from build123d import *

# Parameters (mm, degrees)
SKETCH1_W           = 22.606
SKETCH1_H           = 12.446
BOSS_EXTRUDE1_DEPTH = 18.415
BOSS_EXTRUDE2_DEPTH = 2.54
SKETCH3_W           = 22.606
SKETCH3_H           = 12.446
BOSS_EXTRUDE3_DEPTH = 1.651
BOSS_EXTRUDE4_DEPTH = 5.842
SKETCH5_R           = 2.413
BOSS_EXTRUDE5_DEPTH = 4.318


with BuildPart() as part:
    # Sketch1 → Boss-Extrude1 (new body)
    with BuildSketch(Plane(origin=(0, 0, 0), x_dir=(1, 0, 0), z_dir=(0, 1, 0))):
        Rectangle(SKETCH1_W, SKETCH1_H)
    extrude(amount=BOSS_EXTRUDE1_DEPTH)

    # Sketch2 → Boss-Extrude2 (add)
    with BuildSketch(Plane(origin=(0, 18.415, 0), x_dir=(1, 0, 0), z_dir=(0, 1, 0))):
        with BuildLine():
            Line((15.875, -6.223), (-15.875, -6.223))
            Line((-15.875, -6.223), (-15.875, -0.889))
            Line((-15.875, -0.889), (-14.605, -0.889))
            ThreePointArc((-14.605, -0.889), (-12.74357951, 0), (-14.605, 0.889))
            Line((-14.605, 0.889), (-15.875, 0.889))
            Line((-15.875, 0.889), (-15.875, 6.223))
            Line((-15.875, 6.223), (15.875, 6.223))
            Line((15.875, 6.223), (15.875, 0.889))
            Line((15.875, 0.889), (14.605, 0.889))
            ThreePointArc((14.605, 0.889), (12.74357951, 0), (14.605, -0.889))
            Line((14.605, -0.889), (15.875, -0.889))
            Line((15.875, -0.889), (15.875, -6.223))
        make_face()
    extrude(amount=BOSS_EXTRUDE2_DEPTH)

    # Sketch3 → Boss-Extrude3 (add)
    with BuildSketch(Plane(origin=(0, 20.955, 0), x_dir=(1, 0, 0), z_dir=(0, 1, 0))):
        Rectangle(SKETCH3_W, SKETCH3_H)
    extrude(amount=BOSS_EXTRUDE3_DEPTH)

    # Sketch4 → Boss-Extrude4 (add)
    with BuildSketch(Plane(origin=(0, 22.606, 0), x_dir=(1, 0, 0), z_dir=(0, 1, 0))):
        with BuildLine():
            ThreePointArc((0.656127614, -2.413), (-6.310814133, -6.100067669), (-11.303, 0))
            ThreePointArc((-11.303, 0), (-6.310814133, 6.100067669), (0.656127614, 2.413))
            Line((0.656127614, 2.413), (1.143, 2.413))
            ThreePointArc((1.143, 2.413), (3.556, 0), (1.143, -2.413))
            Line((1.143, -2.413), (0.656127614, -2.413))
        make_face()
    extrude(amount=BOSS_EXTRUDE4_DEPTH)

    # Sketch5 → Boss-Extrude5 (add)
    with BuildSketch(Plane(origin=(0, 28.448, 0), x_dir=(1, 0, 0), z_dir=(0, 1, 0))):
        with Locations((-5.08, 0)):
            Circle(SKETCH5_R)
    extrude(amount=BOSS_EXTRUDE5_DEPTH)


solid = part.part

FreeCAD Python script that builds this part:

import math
import FreeCAD as App
import Part
import Sketcher
from FreeCAD import Vector
Q = App.Units.Quantity


def add_polygon(sketch, points):
    """Adds a closed chain of lines whose ends are joined by coincident constraints."""
    first, n = sketch.GeometryCount, len(points)
    for a, b in zip(points, points[1:] + points[:1]):
        sketch.addGeometry(Part.LineSegment(App.Vector(*a, 0), App.Vector(*b, 0)), False)
    for i in range(n):
        sketch.addConstraint(Sketcher.Constraint("Coincident", first + i, 2, first + (i + 1) % n, 1))

doc = App.newDocument("Part")
body = doc.addObject("PartDesign::Body", "Body")

sketch1 = doc.addObject("Sketcher::SketchObject", "Sketch")
body.addObject(sketch1)
sketch1.AttachmentSupport = (doc.XZ_Plane, [""])
sketch1.MapMode = "FlatFace"
add_polygon(sketch1, [(-11, -6), (-11, 6), (11, 6), (11, -6)])
sketch1.addConstraint([
    Sketcher.Constraint("Vertical", 0),
    Sketcher.Constraint("Horizontal", 1),
    Sketcher.Constraint("Vertical", 2),
    Sketcher.Constraint("Horizontal", 3),
    Sketcher.Constraint("Symmetric", 0, 2, 2, 2, -1, 1),
    Sketcher.Constraint("DistanceX", 1, 1, 1, 2, Q("0.89 in")),
    Sketcher.Constraint("DistanceY", 0, 1, 0, 2, Q("0.49 in")),
])
pad1 = doc.addObject("PartDesign::Pad", "Pad")
body.addObject(pad1)
pad1.Profile = sketch1
pad1.Length = Q("0.725 in")
pad1.Reversed = True

sketch2 = doc.addObject("Sketcher::SketchObject", "Sketch001")
body.addObject(sketch2)
sketch2.AttachmentSupport = (doc.XZ_Plane, [""])
sketch2.MapMode = "FlatFace"
sketch2.AttachmentOffset = App.Placement(Vector(0, 0, -0.725 * 25.4), App.Rotation())
sketch2.addGeometry([
    Part.LineSegment(Vector(-15.9, 6.2, 0), Vector(15.9, 6.2, 0)),
    Part.LineSegment(Vector(15.9, 6.2, 0), Vector(15.9, 0.9, 0)),
    Part.LineSegment(Vector(15.9, 0.9, 0), Vector(14.6, 0.9, 0)),
    Part.ArcOfCircle(Part.Circle(Vector(13.9, 0, 0), Vector(0, 0, 1), 1.1), math.radians(51), math.radians(309)),
    Part.LineSegment(Vector(14.6, -0.9, 0), Vector(15.9, -0.9, 0)),
    Part.LineSegment(Vector(15.9, -0.9, 0), Vector(15.9, -6.2, 0)),
    Part.LineSegment(Vector(15.9, -6.2, 0), Vector(-15.9, -6.2, 0)),
    Part.LineSegment(Vector(-15.9, -6.2, 0), Vector(-15.9, -0.9, 0)),
    Part.LineSegment(Vector(-15.9, -0.9, 0), Vector(-14.6, -0.9, 0)),
    Part.ArcOfCircle(Part.Circle(Vector(-13.9, 0, 0), Vector(0, 0, 1), 1.1), math.radians(-129), math.radians(129)),
    Part.LineSegment(Vector(-14.6, 0.9, 0), Vector(-15.9, 0.9, 0)),
    Part.LineSegment(Vector(-15.9, 0.9, 0), Vector(-15.9, 6.2, 0)),
], False)
sketch2.addConstraint([
    Sketcher.Constraint("Coincident", 0, 2, 1, 1),
    Sketcher.Constraint("Coincident", 1, 2, 2, 1),
    Sketcher.Constraint("Coincident", 2, 2, 3, 1),
    Sketcher.Constraint("Coincident", 3, 2, 4, 1),
    Sketcher.Constraint("Coincident", 4, 2, 5, 1),
    Sketcher.Constraint("Coincident", 5, 2, 6, 1),
    Sketcher.Constraint("Coincident", 6, 2, 7, 1),
    Sketcher.Constraint("Coincident", 7, 2, 8, 1),
    Sketcher.Constraint("Coincident", 8, 2, 9, 1),
    Sketcher.Constraint("Coincident", 9, 2, 10, 1),
    Sketcher.Constraint("Coincident", 10, 2, 11, 1),
    Sketcher.Constraint("Coincident", 11, 2, 0, 1),
    Sketcher.Constraint("Horizontal", 0),
    Sketcher.Constraint("Vertical", 1),
    Sketcher.Constraint("Horizontal", 2),
    Sketcher.Constraint("Horizontal", 4),
    Sketcher.Constraint("Vertical", 5),
    Sketcher.Constraint("Horizontal", 6),
    Sketcher.Constraint("Vertical", 7),
    Sketcher.Constraint("Horizontal", 8),
    Sketcher.Constraint("Horizontal", 10),
    Sketcher.Constraint("Vertical", 11),
    Sketcher.Constraint("Equal", 3, 9),
    Sketcher.Constraint("Symmetric", 3, 3, 9, 3, -1, 1),
    Sketcher.Constraint("Symmetric", 0, 2, 6, 2, -1, 1),
    Sketcher.Constraint("Symmetric", 4, 2, 10, 2, -1, 1),
    Sketcher.Constraint("Symmetric", 4, 2, 7, 2, -2),
    Sketcher.Constraint("Symmetric", 2, 2, 9, 2, -2),
    Sketcher.Constraint("Radius", 3, Q("0.045 in")),
    Sketcher.Constraint("DistanceX", 0, 1, 0, 2, Q("1.25 in")),
    Sketcher.Constraint("DistanceX", 2, 2, 2, 1, Q("0.05 in")),
    Sketcher.Constraint("DistanceY", 1, 2, 1, 1, Q("0.21 in")),
    Sketcher.Constraint("DistanceY", 3, 2, 2, 2, Q("0.07 in")),
])
pad2 = doc.addObject("PartDesign::Pad", "Pad001")
body.addObject(pad2)
pad2.Profile = sketch2
pad2.Length = Q("0.1 in")
pad2.Reversed = True

sketch3 = doc.addObject("Sketcher::SketchObject", "Sketch002")
body.addObject(sketch3)
sketch3.AttachmentSupport = (doc.XZ_Plane, [""])
sketch3.MapMode = "FlatFace"
sketch3.AttachmentOffset = App.Placement(Vector(0, 0, -0.825 * 25.4), App.Rotation())
add_polygon(sketch3, [(-11, -6), (-11, 6), (11, 6), (11, -6)])
sketch3.addConstraint([
    Sketcher.Constraint("Vertical", 0),
    Sketcher.Constraint("Horizontal", 1),
    Sketcher.Constraint("Vertical", 2),
    Sketcher.Constraint("Horizontal", 3),
    Sketcher.Constraint("Symmetric", 0, 2, 2, 2, -1, 1),
    Sketcher.Constraint("DistanceX", 1, 1, 1, 2, Q("0.89 in")),
    Sketcher.Constraint("DistanceY", 0, 1, 0, 2, Q("0.49 in")),
])
pad3 = doc.addObject("PartDesign::Pad", "Pad002")
body.addObject(pad3)
pad3.Profile = sketch3
pad3.Length = Q("0.065 in")
pad3.Reversed = True

sketch4 = doc.addObject("Sketcher::SketchObject", "Sketch003")
body.addObject(sketch4)
sketch4.AttachmentSupport = (doc.XZ_Plane, [""])
sketch4.MapMode = "FlatFace"
sketch4.AttachmentOffset = App.Placement(Vector(0, 0, -0.89 * 25.4), App.Rotation())
sketch4.addGeometry([
    Part.ArcOfCircle(Part.Circle(Vector(-5.08, 0, 0), Vector(0, 0, 1), 6.22), math.radians(23), math.radians(180)),
    Part.LineSegment(Vector(0.66, 2.41, 0), Vector(1.14, 2.41, 0)),
    Part.ArcOfCircle(Part.Circle(Vector(1.14, 0, 0), Vector(0, 0, 1), 2.41), math.radians(-90), math.radians(90)),
    Part.LineSegment(Vector(1.14, -2.41, 0), Vector(0.66, -2.41, 0)),
    Part.ArcOfCircle(Part.Circle(Vector(-5.08, 0, 0), Vector(0, 0, 1), 6.22), math.radians(-180), math.radians(-23)),
], False)
sketch4.addConstraint([
    Sketcher.Constraint("Coincident", 0, 1, 1, 1),
    Sketcher.Constraint("Tangent", 1, 2, 2, 2),
    Sketcher.Constraint("Tangent", 2, 1, 3, 1),
    Sketcher.Constraint("Coincident", 3, 2, 4, 2),
    Sketcher.Constraint("Tangent", 4, 1, 0, 2),
    Sketcher.Constraint("Horizontal", 1),
    Sketcher.Constraint("Horizontal", 3),
    Sketcher.Constraint("Equal", 0, 4),
    Sketcher.Constraint("Symmetric", 0, 1, 3, 2, -1),
    Sketcher.Constraint("PointOnObject", 4, 1, -1),
    Sketcher.Constraint("Radius", 0, Q("0.245 in")),
    Sketcher.Constraint("Radius", 2, Q("0.095 in")),
    Sketcher.Constraint("DistanceX", 0, 3, -1, 1, Q("0.2 in")),
    Sketcher.Constraint("DistanceX", 4, 1, 2, 3, Q("0.49 in")),
])
pad4 = doc.addObject("PartDesign::Pad", "Pad003")
body.addObject(pad4)
pad4.Profile = sketch4
pad4.Length = Q("0.23 in")
pad4.Reversed = True

sketch5 = doc.addObject("Sketcher::SketchObject", "Sketch004")
body.addObject(sketch5)
sketch5.AttachmentSupport = (doc.XZ_Plane, [""])
sketch5.MapMode = "FlatFace"
sketch5.AttachmentOffset = App.Placement(Vector(0, 0, -1.12 * 25.4), App.Rotation())
sketch5.addGeometry(Part.Circle(Vector(-5.1, 0, 0), Vector(0, 0, 1), 2.4), False)
sketch5.addConstraint([
    Sketcher.Constraint("PointOnObject", 0, 3, -1),
    Sketcher.Constraint("Diameter", 0, Q("0.19 in")),
    Sketcher.Constraint("DistanceX", 0, 3, -1, 1, Q("0.2 in")),
])
pad5 = doc.addObject("PartDesign::Pad", "Pad004")
body.addObject(pad5)
pad5.Profile = sketch5
pad5.Length = Q("0.17 in")
pad5.Reversed = True

doc.recompute()
